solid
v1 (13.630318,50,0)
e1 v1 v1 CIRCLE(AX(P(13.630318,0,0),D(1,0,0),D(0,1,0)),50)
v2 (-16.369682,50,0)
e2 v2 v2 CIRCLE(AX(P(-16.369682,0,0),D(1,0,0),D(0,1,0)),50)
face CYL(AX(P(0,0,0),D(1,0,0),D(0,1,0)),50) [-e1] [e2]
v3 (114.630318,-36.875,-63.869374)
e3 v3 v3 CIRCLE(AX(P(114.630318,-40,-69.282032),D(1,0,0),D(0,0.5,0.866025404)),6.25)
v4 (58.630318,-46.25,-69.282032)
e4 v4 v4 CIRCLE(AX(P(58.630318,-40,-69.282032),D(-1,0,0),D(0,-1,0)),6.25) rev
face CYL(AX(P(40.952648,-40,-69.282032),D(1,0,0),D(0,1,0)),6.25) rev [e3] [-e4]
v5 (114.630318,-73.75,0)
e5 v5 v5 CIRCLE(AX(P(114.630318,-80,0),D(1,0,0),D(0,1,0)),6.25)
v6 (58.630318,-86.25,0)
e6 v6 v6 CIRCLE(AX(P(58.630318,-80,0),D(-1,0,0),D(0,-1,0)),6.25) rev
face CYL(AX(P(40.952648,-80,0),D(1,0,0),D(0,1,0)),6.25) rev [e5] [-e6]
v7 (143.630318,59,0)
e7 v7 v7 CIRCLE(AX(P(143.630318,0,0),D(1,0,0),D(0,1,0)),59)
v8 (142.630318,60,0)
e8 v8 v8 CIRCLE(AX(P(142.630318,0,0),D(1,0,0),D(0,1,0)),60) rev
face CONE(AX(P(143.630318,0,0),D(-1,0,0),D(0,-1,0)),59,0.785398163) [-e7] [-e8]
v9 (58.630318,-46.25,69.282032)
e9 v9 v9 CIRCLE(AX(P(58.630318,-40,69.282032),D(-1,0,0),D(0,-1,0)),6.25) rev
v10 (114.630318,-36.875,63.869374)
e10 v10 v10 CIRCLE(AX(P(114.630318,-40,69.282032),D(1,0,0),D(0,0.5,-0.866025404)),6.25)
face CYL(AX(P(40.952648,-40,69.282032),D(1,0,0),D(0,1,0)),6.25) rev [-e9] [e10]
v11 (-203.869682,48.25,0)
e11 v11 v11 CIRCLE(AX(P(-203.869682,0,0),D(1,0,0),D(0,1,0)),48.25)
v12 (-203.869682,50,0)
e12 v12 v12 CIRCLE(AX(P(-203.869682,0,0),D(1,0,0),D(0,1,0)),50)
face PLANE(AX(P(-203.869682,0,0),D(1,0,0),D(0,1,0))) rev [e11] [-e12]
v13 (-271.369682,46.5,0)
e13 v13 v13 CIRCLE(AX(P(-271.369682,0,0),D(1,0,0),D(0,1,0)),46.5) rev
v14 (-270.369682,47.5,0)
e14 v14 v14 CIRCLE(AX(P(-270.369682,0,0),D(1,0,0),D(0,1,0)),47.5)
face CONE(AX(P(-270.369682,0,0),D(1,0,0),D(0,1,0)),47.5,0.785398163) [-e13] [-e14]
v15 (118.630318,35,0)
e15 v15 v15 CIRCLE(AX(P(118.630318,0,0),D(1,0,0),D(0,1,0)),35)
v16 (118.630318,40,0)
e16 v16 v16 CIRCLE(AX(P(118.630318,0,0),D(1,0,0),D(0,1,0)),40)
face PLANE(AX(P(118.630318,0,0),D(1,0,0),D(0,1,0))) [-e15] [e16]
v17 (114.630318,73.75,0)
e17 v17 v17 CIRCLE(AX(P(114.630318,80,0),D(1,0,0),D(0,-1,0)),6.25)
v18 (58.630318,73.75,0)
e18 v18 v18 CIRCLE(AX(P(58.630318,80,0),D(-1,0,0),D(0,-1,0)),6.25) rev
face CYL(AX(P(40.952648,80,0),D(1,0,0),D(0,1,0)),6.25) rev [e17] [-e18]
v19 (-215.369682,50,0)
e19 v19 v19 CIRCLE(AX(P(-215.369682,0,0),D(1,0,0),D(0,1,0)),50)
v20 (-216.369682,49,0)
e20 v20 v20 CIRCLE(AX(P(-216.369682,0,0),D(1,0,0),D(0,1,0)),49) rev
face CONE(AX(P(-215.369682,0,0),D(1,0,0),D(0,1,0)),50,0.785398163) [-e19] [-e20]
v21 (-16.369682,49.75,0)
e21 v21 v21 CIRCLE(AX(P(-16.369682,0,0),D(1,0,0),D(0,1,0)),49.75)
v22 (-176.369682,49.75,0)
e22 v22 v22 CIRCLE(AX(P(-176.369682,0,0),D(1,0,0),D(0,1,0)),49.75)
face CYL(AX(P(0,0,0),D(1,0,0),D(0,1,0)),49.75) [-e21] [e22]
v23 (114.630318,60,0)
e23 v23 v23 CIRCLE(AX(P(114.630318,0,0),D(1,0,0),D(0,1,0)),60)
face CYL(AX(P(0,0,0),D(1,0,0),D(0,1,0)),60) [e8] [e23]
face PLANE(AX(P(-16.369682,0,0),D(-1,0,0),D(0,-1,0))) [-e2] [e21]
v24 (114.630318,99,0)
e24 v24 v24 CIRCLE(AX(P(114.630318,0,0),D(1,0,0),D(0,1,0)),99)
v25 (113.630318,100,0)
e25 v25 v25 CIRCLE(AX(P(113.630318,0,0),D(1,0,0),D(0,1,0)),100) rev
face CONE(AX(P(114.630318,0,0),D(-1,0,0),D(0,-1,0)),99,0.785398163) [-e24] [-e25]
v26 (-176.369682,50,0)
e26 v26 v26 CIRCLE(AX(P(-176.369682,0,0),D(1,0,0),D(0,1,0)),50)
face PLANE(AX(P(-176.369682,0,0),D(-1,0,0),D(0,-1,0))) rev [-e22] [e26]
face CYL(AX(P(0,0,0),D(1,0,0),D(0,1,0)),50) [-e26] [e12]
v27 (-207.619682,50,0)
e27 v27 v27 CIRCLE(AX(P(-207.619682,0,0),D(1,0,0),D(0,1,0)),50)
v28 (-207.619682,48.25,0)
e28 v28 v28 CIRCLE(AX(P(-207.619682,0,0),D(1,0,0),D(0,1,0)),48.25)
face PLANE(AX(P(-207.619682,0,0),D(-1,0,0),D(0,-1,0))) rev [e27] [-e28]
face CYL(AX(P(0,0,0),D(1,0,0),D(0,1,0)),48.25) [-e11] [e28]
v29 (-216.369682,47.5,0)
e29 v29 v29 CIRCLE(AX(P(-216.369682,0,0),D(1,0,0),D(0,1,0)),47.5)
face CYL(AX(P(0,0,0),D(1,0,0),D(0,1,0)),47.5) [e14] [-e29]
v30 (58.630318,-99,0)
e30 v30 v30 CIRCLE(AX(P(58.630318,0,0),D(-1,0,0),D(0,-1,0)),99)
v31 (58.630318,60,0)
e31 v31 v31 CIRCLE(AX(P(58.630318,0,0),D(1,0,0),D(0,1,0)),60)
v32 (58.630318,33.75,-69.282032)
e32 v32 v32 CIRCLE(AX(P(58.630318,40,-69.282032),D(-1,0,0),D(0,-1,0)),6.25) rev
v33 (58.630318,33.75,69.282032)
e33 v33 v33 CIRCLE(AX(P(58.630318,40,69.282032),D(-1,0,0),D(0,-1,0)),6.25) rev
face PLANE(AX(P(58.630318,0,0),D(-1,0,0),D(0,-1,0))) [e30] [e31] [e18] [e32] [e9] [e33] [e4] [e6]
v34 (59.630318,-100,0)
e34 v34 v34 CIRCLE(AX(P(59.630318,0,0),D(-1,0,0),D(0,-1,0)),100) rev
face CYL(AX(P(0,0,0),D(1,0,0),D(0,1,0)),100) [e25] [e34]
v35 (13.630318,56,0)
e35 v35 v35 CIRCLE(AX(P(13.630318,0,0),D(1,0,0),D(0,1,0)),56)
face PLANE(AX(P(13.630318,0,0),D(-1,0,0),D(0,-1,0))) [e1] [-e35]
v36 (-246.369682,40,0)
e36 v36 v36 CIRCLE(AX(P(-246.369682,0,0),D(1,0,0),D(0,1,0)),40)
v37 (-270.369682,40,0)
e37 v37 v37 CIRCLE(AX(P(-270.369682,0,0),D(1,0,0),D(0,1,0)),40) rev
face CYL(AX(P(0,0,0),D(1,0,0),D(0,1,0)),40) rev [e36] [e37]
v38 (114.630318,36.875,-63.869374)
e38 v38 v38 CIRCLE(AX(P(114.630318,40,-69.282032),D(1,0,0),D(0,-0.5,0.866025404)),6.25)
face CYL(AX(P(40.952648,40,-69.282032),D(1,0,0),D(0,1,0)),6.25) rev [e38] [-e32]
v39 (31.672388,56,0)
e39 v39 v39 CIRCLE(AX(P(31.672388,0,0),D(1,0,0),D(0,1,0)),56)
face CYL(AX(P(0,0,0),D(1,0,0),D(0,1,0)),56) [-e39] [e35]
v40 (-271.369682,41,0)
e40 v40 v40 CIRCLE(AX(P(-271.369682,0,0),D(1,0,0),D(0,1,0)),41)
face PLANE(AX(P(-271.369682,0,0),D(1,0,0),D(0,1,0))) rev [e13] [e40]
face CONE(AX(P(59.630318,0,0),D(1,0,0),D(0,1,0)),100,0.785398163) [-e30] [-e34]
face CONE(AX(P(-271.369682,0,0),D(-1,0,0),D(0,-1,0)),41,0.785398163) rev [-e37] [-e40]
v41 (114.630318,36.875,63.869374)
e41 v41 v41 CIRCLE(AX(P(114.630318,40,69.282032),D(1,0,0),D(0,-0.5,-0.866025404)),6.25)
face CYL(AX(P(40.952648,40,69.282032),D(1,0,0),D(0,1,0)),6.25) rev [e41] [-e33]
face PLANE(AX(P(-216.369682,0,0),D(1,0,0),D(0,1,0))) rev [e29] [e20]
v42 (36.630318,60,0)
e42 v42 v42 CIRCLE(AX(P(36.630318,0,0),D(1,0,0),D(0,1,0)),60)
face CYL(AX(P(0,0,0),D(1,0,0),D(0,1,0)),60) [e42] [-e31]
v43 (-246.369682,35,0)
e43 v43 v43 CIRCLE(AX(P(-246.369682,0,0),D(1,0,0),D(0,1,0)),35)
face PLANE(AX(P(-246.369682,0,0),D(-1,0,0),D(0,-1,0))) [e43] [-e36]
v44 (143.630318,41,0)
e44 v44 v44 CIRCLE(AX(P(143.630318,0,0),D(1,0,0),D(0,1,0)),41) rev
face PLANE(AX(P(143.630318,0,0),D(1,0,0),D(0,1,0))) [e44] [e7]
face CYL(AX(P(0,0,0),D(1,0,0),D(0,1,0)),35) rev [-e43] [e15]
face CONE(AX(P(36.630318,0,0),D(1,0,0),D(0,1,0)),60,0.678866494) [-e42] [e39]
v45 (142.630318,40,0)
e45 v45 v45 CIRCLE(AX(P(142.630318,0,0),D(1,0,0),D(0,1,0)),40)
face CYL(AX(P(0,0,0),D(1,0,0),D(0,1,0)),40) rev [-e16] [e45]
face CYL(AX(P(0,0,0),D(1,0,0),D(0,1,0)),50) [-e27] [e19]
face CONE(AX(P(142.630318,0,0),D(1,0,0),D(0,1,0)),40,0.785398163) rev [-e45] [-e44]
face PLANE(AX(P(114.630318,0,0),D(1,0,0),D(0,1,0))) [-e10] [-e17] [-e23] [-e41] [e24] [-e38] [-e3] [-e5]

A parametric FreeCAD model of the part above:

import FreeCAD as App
import Part
import Sketcher


def edges_at(feature, points):
    """Names of the edges that pass closest to the given points."""
    edges = feature.Shape.Edges
    near = lambda p: min(range(len(edges)), key=lambda i: edges[i].distToShape(Part.Vertex(*p))[0])
    return sorted({f"Edge{near(p) + 1}" for p in points})


def add_polygon(sketch, points):
    """Adds a closed chain of lines whose ends are joined by coincident constraints."""
    first, n = sketch.GeometryCount, len(points)
    for a, b in zip(points, points[1:] + points[:1]):
        sketch.addGeometry(Part.LineSegment(App.Vector(*a, 0), App.Vector(*b, 0)), False)
    for i in range(n):
        sketch.addConstraint(Sketcher.Constraint("Coincident", first + i, 2, first + (i + 1) % n, 1))

doc = App.newDocument("Part")
body = doc.addObject("PartDesign::Body", "Body")

sketch1 = body.newObject("Sketcher::SketchObject", "Sketch")
sketch1.AttachmentSupport = (doc.getObject("XY_Plane"), [""])
sketch1.MapMode = "FlatFace"
add_polygon(sketch1, [(13.63, 50), (-16.37, 50), (-16.37, 49.75), (-176.37, 49.75), (-176.37, 50), (-203.87, 50), (-203.87, 48.25), (-207.62, 48.25), (-207.62, 50), (-216.37, 50), (-216.37, 47.5), (-271.37, 47.5), (-271.37, 40), (-246.37, 40), (-246.37, 35), (118.63, 35), (118.63, 40), (143.63, 40), (143.63, 60), (114.63, 60), (114.63, 100), (58.63, 100), (58.63, 60), (36.63, 60), (31.67, 56), (13.63, 56)])
sketch1.addConstraint(Sketcher.Constraint("Horizontal", 0))
sketch1.addConstraint(Sketcher.Constraint("Vertical", 1))
sketch1.addConstraint(Sketcher.Constraint("Horizontal", 2))
sketch1.addConstraint(Sketcher.Constraint("Vertical", 3))
sketch1.addConstraint(Sketcher.Constraint("Horizontal", 4))
sketch1.addConstraint(Sketcher.Constraint("Vertical", 5))
sketch1.addConstraint(Sketcher.Constraint("Horizontal", 6))
sketch1.addConstraint(Sketcher.Constraint("Vertical", 7))
sketch1.addConstraint(Sketcher.Constraint("Horizontal", 8))
sketch1.addConstraint(Sketcher.Constraint("Vertical", 9))
sketch1.addConstraint(Sketcher.Constraint("Horizontal", 10))
sketch1.addConstraint(Sketcher.Constraint("Vertical", 11))
sketch1.addConstraint(Sketcher.Constraint("Horizontal", 12))
sketch1.addConstraint(Sketcher.Constraint("Vertical", 13))
sketch1.addConstraint(Sketcher.Constraint("Horizontal", 14))
sketch1.addConstraint(Sketcher.Constraint("Vertical", 15))
sketch1.addConstraint(Sketcher.Constraint("Horizontal", 16))
sketch1.addConstraint(Sketcher.Constraint("Vertical", 17))
sketch1.addConstraint(Sketcher.Constraint("Horizontal", 18))
sketch1.addConstraint(Sketcher.Constraint("Vertical", 19))
sketch1.addConstraint(Sketcher.Constraint("Horizontal", 20))
sketch1.addConstraint(Sketcher.Constraint("Vertical", 21))
sketch1.addConstraint(Sketcher.Constraint("Horizontal", 22))
sketch1.addConstraint(Sketcher.Constraint("Horizontal", 24))
sketch1.addConstraint(Sketcher.Constraint("Vertical", 25))
sketch1.addConstraint(Sketcher.Constraint("Horizontal", 0, 2, 3, 2))
sketch1.addConstraint(Sketcher.Constraint("Horizontal", 4, 2, 7, 2))
sketch1.addConstraint(Sketcher.Constraint("Horizontal", 12, 2, 15, 2))
sketch1.addConstraint(Sketcher.Constraint("Horizontal", 18, 2, 21, 2))
sketch1.addConstraint(Sketcher.Constraint("Equal", 12, 16))
sketch1.addConstraint(Sketcher.Constraint("DistanceX", 0, 2, 0, 1, 30.0))
sketch1.addConstraint(Sketcher.Constraint("DistanceX", 2, 2, 2, 1, 160.0))
sketch1.addConstraint(Sketcher.Constraint("DistanceX", 10, 2, 10, 1, 55.0))
sketch1.addConstraint(Sketcher.Constraint("DistanceX", 12, 1, 12, 2, 25.0))
sketch1.addConstraint(Sketcher.Constraint("DistanceX", 14, 1, 14, 2, 365.0))
sketch1.addConstraint(Sketcher.Constraint("DistanceX", 18, 2, 18, 1, 29.0))
sketch1.addConstraint(Sketcher.Constraint("DistanceX", 20, 2, 20, 1, 56.0))
sketch1.addConstraint(Sketcher.Constraint("DistanceX", 22, 2, 22, 1, 22.0))
sketch1.addConstraint(Sketcher.Constraint("DistanceY", 13, 2, 13, 1, 5.0))
sketch1.addConstraint(Sketcher.Constraint("DistanceY", 17, 1, 17, 2, 20.0))
sketch1.addConstraint(Sketcher.Constraint("DistanceY", 19, 1, 19, 2, 40.0))
sketch1.addConstraint(Sketcher.Constraint("DistanceY", 25, 2, 25, 1, 6.0))
sketch1.addConstraint(Sketcher.Constraint("DistanceX", 4, 2, 4, 1, 27.5))
sketch1.addConstraint(Sketcher.Constraint("DistanceY", 9, 2, 9, 1, 2.5))
sketch1.addConstraint(Sketcher.Constraint("DistanceY", 11, 2, 11, 1, 7.5))
sketch1.addConstraint(Sketcher.Constraint("DistanceY", -1, 1, 0, 2, 50.0))
sketch1.addConstraint(Sketcher.Constraint("DistanceX", 8, 2, 3, 2, 40.0))
sketch1.addConstraint(Sketcher.Constraint("DistanceX", 6, 2, 6, 1, 3.75))
sketch1.addConstraint(Sketcher.Constraint("DistanceY", 1, 2, 1, 1, 0.25))
sketch1.addConstraint(Sketcher.Constraint("DistanceY", 5, 2, 5, 1, 1.75))
sketch1.addConstraint(Sketcher.Constraint("DistanceX", 24, 2, 24, 1, 18.04207))
sketch1.addConstraint(Sketcher.Constraint("DistanceX", -1, 1, 23, 2, 31.672388))
revolution = body.newObject("PartDesign::Revolution", "Revolution")
revolution.Profile = sketch1
revolution.ReferenceAxis = (sketch1, ["H_Axis"])
revolution.Angle = 360
doc.recompute()

chamfer = body.newObject("PartDesign::Chamfer", "Chamfer")
chamfer.Base = (revolution, edges_at(revolution, [(58.63, -100, 0), (114.63, -100, 0), (143.63, -60, 0)]))
chamfer.Size = 1
doc.recompute()

chamfer2 = body.newObject("PartDesign::Chamfer", "Chamfer001")
chamfer2.Base = (chamfer, edges_at(chamfer, [
    (143.63, -40, 0),
    (-271.37, -40, 0),
    (-271.37, -47.5, 0),
    (-216.37, -50, 0),
]))
chamfer2.Size = 1

sketch2 = body.newObject("Sketcher::SketchObject", "Sketch001")
sketch2.AttachmentSupport = (doc.getObject("YZ_Plane"), [""])
sketch2.MapMode = "FlatFace"
sketch2.AttachmentOffset = App.Placement(App.Vector(0, 0, 114.630318), App.Rotation())
sketch2.addGeometry(Part.Circle(App.Vector(-80, 0, 0), App.Vector(0, 0, 1), 6), False)
sketch2.addConstraint(Sketcher.Constraint("PointOnObject", 0, 3, -1))
sketch2.addConstraint(Sketcher.Constraint("Diameter", 0, 12.5))
sketch2.addConstraint(Sketcher.Constraint("DistanceX", 0, 3, -1, 1, 80.0))
pocket1 = body.newObject("PartDesign::Pocket", "Pocket")
pocket1.Profile = sketch2
pocket1.Length = 56
doc.recompute()

polarpattern = body.newObject("PartDesign::PolarPattern", "PolarPattern")
polarpattern.Originals = [pocket1]
polarpattern.Axis = (doc.getObject("X_Axis"), [""])
polarpattern.Angle = 360
polarpattern.Occurrences = 6
body.Tip = polarpattern

doc.recompute()
